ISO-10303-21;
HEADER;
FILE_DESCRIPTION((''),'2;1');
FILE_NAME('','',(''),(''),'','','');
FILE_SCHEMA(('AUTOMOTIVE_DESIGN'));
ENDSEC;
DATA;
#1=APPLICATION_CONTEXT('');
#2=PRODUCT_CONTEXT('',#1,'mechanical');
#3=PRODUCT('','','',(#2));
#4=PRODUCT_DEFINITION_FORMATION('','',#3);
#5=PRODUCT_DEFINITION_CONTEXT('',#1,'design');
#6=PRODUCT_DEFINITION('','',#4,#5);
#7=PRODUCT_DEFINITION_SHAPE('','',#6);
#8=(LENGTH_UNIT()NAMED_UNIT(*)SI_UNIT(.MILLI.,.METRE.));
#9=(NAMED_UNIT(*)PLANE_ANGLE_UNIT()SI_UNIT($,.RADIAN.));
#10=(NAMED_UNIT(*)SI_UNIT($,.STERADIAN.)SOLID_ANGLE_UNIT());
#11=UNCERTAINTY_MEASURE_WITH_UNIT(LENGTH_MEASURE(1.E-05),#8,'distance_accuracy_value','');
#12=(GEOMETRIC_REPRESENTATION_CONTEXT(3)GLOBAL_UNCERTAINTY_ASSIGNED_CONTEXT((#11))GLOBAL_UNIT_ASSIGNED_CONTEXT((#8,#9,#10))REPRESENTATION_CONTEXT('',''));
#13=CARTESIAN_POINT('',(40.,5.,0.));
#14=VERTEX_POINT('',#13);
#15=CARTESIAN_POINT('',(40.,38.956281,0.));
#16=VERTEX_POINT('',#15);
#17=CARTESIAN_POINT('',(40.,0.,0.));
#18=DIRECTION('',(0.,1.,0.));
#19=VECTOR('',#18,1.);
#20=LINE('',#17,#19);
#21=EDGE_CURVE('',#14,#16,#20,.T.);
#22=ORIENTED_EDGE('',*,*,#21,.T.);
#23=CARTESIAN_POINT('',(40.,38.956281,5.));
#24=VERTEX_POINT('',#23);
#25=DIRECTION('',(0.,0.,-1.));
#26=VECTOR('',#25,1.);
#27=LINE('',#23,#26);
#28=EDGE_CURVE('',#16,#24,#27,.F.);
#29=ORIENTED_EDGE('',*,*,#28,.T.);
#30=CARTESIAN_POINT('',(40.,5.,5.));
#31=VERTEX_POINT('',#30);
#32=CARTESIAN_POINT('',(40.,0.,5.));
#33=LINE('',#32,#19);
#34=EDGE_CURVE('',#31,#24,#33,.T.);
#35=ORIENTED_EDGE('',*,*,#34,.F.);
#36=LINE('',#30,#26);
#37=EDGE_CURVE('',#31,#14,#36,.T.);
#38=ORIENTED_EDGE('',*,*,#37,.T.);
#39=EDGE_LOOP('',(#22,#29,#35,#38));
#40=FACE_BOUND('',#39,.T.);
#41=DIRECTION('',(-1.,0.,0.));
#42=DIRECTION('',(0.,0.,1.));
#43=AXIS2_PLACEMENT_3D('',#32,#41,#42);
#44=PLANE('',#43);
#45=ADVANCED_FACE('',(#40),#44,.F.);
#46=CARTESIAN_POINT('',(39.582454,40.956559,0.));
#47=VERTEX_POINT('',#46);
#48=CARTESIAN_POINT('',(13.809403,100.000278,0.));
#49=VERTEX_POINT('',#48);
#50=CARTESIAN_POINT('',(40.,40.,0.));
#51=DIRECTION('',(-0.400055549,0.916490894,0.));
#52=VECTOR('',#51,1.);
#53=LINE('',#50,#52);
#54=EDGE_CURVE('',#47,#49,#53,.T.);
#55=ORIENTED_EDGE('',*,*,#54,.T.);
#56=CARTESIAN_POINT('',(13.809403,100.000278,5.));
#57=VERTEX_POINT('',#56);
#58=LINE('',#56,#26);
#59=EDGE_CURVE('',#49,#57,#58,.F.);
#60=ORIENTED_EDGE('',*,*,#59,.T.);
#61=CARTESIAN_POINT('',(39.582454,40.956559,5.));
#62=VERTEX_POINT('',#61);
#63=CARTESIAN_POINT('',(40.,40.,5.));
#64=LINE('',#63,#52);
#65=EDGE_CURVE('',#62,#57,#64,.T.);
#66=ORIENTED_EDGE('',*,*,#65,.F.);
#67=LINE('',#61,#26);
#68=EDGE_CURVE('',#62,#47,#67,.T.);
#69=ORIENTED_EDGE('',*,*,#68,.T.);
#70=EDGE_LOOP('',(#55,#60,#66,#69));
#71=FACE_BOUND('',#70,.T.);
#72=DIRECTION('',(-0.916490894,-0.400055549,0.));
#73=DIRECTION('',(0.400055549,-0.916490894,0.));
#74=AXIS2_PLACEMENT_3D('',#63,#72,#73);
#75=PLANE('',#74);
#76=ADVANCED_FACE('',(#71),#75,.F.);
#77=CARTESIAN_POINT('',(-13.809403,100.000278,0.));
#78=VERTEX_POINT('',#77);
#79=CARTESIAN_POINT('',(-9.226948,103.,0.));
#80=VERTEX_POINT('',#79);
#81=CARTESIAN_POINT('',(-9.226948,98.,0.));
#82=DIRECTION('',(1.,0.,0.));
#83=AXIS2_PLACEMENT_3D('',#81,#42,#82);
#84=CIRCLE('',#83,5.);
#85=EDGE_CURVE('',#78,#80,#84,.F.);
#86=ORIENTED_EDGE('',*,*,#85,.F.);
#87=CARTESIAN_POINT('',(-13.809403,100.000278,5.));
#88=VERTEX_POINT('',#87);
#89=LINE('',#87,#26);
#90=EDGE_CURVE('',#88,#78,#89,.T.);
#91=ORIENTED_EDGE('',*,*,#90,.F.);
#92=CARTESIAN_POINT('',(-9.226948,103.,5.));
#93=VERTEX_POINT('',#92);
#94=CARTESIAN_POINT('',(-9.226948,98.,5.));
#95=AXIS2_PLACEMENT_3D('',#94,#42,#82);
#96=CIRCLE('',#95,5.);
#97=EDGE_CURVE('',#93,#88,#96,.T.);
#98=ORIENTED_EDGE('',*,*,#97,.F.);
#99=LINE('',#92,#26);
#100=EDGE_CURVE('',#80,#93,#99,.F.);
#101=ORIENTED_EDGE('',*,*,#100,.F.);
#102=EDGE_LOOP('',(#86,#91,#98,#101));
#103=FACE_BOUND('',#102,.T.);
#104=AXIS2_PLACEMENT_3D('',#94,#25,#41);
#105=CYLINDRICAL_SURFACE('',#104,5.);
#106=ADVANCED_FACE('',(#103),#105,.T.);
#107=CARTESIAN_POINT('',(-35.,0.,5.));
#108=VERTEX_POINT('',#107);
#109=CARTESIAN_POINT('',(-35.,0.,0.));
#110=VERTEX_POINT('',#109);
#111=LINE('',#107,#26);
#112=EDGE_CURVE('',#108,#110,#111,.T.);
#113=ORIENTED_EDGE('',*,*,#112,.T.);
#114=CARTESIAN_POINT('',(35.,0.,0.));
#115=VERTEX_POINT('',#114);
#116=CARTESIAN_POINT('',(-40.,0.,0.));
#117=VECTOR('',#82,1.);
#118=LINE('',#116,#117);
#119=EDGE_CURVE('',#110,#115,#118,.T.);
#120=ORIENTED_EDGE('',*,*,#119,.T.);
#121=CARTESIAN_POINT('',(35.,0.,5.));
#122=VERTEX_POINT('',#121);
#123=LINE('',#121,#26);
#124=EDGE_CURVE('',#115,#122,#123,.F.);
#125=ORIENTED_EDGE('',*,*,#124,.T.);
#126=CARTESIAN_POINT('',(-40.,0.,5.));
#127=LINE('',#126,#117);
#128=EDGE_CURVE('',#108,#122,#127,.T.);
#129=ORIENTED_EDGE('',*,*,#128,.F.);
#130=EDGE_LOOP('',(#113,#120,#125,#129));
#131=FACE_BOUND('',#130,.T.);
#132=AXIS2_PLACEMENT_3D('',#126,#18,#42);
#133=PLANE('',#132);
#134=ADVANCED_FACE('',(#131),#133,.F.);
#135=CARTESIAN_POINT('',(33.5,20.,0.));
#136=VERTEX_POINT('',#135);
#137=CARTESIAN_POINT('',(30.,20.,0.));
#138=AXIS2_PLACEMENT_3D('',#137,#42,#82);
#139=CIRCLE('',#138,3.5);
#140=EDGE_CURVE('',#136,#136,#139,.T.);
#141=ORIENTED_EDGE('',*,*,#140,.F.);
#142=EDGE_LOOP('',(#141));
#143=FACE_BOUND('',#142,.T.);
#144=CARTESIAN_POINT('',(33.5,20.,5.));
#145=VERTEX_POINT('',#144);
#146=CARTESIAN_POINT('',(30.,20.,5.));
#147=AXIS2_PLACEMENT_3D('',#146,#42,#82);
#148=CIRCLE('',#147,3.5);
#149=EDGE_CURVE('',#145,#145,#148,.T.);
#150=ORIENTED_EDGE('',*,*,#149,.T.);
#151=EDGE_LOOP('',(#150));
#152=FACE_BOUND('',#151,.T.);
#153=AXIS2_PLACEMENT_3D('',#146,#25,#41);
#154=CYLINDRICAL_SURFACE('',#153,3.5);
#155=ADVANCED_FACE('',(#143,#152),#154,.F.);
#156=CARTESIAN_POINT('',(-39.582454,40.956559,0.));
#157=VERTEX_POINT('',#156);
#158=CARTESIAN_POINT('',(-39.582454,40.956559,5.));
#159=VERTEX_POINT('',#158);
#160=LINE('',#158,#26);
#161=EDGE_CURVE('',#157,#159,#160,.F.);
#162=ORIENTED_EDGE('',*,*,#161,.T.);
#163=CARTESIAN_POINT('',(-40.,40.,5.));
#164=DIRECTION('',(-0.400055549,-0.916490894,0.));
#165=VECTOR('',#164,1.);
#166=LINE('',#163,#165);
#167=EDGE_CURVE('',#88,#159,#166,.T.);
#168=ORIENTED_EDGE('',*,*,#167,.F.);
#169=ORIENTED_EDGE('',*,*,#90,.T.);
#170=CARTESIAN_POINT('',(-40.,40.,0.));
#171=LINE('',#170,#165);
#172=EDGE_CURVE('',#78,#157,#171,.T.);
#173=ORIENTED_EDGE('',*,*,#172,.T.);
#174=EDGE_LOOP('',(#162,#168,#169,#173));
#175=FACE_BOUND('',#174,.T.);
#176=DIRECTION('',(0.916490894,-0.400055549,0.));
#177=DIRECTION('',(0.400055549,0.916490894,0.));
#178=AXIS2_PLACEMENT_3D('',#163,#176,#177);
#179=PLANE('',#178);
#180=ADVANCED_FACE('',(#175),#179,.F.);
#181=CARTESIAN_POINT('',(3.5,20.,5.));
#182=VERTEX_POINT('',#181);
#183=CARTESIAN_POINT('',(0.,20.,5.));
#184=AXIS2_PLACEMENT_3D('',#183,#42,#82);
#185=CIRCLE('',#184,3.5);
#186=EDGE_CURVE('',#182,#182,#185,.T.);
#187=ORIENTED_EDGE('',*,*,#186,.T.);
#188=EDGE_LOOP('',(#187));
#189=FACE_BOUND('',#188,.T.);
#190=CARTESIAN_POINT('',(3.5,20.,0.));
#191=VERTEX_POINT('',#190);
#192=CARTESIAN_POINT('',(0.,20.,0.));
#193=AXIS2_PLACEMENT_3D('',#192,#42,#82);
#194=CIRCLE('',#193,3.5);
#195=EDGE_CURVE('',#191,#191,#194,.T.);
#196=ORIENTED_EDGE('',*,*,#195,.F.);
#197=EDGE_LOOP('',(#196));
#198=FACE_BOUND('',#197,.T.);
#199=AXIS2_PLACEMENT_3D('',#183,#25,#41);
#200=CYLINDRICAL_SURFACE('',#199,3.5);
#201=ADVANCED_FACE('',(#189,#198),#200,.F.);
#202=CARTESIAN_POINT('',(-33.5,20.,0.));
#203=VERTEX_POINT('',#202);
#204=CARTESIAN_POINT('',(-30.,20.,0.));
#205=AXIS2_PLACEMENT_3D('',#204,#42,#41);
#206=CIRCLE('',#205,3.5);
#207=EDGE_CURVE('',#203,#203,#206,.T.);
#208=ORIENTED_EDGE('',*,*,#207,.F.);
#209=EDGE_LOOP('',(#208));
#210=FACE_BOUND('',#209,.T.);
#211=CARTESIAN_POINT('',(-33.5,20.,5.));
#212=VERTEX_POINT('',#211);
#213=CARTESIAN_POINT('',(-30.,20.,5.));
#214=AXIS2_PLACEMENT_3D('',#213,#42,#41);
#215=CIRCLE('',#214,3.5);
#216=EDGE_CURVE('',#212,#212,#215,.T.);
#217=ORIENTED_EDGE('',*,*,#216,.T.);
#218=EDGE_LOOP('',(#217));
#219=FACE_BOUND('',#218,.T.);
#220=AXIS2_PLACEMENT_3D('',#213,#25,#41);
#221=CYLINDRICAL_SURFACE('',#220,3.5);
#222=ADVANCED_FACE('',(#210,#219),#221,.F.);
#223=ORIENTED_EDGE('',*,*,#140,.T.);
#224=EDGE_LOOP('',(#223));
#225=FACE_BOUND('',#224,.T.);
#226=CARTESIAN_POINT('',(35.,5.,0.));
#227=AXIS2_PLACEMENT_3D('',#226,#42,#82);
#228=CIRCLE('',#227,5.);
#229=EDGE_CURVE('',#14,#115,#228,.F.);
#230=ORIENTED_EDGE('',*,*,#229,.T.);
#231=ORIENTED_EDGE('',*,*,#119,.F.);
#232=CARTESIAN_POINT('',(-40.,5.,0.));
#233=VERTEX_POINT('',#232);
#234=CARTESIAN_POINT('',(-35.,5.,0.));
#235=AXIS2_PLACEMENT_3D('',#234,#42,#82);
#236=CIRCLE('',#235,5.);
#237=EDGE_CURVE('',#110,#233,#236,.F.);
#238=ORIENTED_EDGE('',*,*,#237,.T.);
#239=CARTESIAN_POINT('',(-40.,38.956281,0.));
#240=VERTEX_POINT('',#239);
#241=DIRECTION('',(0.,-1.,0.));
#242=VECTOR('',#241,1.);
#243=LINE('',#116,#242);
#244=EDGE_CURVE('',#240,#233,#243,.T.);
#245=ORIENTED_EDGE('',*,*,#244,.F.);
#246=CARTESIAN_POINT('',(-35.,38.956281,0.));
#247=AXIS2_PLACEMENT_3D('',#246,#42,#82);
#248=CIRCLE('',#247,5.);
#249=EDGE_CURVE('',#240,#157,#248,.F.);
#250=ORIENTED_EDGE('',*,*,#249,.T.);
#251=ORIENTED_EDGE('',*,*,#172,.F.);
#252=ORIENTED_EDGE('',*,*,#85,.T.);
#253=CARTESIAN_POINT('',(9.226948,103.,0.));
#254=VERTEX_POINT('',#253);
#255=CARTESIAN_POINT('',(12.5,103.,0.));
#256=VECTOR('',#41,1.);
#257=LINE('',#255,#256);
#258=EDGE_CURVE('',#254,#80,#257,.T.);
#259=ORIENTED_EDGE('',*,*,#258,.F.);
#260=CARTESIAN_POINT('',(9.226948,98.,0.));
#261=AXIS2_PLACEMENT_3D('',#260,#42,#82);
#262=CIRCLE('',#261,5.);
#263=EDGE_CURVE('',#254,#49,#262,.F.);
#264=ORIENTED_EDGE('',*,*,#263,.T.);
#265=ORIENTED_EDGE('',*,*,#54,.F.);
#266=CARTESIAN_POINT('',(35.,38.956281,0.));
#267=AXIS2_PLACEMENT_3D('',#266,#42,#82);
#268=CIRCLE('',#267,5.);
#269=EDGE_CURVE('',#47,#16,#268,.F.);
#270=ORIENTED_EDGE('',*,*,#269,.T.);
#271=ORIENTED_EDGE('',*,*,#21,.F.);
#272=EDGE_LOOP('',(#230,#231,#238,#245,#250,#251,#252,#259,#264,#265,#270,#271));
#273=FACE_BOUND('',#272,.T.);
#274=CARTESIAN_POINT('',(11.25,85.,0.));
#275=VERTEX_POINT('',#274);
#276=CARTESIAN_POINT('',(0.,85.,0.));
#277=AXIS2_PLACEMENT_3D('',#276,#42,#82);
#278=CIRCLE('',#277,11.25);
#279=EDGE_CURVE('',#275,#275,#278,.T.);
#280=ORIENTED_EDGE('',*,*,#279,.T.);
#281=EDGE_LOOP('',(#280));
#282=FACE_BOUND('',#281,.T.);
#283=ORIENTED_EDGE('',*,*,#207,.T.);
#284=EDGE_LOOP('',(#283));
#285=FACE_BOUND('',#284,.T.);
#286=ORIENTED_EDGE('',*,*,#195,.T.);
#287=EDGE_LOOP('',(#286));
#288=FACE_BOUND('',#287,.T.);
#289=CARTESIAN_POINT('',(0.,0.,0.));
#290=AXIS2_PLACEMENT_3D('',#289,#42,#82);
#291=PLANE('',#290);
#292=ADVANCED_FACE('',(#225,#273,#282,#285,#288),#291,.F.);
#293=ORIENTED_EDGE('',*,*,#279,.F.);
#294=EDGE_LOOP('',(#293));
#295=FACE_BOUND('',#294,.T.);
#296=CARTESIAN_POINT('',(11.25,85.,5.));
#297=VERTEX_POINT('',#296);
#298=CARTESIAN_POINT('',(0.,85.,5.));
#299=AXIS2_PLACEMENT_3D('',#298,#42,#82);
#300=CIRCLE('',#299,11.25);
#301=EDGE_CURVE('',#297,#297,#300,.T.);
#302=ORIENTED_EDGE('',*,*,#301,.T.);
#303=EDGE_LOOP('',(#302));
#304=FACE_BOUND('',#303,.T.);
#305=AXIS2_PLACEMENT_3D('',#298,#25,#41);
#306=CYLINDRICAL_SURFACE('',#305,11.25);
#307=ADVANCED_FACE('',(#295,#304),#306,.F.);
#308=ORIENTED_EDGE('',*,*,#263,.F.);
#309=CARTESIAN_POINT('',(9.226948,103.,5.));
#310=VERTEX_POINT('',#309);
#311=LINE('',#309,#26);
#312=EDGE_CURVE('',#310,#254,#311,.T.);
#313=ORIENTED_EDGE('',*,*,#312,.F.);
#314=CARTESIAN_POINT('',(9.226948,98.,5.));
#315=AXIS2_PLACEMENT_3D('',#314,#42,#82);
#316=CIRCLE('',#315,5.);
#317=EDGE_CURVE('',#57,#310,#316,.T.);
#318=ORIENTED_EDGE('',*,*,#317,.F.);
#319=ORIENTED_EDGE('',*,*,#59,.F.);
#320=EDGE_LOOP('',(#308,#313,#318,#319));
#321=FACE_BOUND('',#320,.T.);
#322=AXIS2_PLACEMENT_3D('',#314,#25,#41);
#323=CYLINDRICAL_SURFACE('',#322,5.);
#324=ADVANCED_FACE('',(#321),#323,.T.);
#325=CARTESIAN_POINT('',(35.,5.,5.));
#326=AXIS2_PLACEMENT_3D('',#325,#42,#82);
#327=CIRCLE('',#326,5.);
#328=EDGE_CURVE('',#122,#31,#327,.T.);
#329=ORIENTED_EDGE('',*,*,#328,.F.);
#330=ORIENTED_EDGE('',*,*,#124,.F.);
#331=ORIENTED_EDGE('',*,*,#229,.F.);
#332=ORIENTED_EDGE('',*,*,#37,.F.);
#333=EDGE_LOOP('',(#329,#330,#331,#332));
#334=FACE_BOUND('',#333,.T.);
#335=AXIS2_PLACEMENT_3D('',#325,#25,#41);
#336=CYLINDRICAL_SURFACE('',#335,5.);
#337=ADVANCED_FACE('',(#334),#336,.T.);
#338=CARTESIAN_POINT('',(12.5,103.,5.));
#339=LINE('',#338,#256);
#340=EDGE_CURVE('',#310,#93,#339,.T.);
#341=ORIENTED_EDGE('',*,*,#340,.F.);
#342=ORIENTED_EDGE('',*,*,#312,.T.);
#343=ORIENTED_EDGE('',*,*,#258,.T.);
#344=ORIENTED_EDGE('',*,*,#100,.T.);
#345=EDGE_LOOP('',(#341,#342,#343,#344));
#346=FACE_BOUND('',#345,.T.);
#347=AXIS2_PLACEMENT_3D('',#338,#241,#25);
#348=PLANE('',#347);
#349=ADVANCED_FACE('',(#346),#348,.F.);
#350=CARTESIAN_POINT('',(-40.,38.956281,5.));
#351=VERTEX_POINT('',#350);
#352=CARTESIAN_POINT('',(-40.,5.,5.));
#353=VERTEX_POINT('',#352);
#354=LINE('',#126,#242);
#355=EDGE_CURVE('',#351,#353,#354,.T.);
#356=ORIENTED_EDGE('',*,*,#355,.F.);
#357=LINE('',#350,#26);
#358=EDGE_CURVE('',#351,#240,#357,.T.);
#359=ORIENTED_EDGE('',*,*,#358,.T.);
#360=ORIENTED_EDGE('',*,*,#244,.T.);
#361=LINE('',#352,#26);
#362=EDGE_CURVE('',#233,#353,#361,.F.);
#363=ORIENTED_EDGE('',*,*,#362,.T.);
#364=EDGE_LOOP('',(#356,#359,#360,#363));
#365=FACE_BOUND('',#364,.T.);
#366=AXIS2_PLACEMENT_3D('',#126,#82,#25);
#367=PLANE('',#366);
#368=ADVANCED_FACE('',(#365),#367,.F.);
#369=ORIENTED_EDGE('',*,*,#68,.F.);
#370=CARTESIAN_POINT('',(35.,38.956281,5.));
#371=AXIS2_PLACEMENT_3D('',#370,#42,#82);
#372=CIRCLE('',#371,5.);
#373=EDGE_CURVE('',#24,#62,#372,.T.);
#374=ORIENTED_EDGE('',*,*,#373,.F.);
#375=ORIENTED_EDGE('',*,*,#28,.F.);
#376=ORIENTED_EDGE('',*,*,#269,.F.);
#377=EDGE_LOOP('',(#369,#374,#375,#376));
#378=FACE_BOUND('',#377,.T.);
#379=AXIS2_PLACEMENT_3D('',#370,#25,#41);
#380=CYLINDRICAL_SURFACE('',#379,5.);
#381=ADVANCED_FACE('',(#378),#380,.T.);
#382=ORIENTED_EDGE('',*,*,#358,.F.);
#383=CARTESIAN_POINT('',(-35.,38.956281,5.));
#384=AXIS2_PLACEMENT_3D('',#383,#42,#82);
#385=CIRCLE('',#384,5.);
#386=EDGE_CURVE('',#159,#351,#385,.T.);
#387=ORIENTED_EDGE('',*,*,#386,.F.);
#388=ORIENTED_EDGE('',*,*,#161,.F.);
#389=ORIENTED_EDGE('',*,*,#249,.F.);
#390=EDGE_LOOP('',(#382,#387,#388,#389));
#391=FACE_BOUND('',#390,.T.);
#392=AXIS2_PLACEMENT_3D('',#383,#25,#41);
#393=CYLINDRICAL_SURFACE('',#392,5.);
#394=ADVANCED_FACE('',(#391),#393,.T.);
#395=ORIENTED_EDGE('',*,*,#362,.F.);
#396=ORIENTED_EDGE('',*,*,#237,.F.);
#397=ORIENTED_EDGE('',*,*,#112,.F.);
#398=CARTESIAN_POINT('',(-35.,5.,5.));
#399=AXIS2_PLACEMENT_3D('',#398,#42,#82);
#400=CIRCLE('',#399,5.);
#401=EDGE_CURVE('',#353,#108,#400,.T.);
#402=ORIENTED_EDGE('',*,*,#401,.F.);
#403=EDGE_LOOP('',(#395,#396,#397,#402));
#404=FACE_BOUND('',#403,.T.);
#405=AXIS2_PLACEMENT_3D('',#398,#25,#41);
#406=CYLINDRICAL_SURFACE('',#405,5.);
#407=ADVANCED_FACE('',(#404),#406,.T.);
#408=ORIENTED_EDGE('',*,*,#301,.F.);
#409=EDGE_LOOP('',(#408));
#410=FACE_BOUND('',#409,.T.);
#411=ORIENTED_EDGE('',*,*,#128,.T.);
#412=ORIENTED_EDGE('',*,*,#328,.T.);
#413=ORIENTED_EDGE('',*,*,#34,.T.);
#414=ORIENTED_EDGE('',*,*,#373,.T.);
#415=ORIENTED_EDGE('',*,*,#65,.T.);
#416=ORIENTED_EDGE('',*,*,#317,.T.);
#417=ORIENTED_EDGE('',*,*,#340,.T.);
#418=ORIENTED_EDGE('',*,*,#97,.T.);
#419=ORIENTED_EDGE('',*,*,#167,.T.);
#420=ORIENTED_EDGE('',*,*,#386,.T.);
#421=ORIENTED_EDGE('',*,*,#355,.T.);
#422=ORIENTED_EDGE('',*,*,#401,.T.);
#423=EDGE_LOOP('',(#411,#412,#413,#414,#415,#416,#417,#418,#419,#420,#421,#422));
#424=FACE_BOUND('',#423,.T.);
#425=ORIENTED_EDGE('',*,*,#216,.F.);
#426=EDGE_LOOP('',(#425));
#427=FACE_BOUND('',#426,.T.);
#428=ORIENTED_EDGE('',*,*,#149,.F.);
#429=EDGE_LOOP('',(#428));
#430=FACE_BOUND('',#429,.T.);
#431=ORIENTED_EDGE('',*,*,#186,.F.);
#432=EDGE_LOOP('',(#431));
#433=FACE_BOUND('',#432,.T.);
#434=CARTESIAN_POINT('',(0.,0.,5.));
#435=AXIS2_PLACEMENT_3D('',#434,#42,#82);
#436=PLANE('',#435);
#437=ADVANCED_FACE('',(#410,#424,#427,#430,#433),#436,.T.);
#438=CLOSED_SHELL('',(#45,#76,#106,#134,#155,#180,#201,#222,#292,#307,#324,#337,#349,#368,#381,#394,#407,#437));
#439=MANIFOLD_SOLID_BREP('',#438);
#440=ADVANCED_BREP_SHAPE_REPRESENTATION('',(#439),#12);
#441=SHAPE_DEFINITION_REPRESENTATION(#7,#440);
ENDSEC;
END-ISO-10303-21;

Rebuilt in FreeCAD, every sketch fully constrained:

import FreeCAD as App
import Part
import Sketcher
from FreeCAD import Vector


def edges_at(feature, points):
    """Names of the edges that pass closest to the given points."""
    edges = feature.Shape.Edges
    near = lambda p: min(range(len(edges)), key=lambda i: edges[i].distToShape(Part.Vertex(*p))[0])
    return sorted({f"Edge{near(p) + 1}" for p in points})


def add_polygon(sketch, points):
    """Adds a closed chain of lines whose ends are joined by coincident constraints."""
    first, n = sketch.GeometryCount, len(points)
    for a, b in zip(points, points[1:] + points[:1]):
        sketch.addGeometry(Part.LineSegment(App.Vector(*a, 0), App.Vector(*b, 0)), False)
    for i in range(n):
        sketch.addConstraint(Sketcher.Constraint("Coincident", first + i, 2, first + (i + 1) % n, 1))

doc = App.newDocument("Part")
params = doc.addObject("Spreadsheet::Sheet", "Params")
for row, (alias, value) in enumerate([
    ("sketch1_diameter", "7 mm"),
    ("sketch1_diameter2", "22.5 mm"),
    ("sketch1_width", "80 mm"),
    ("sketch1_width2", "25 mm"),
    ("sketch1_height", "40 mm"),
    ("pad1_length", "5 mm"),
    ("fillet_radius", "5 mm"),
], start=1):
    params.set(f"A{row}", alias)
    params.set(f"B{row}", "=" + value)
    params.setAlias(f"B{row}", alias)

body = doc.addObject("PartDesign::Body", "Body")

sketch1 = body.newObject("Sketcher::SketchObject", "Sketch")
sketch1.AttachmentSupport = (doc.getObject("XY_Plane"), [""])
sketch1.MapMode = "FlatFace"
add_polygon(sketch1, [(-40, 0), (40, 0), (40, 40), (12.5, 103), (-12.5, 103), (-40, 40)])
sketch1.addGeometry(Part.Circle(Vector(-30, 20, 0), Vector(0, 0, 1), 3.5), False)
sketch1.addGeometry(Part.Circle(Vector(0, 20, 0), Vector(0, 0, 1), 3.5), False)
sketch1.addGeometry(Part.Circle(Vector(30, 20, 0), Vector(0, 0, 1), 3.5), False)
sketch1.addGeometry(Part.Circle(Vector(0, 85, 0), Vector(0, 0, 1), 11.2), False)
sketch1.addConstraint(Sketcher.Constraint("Horizontal", 0))
sketch1.addConstraint(Sketcher.Constraint("Vertical", 1))
sketch1.addConstraint(Sketcher.Constraint("Horizontal", 3))
sketch1.addConstraint(Sketcher.Constraint("Vertical", 5))
sketch1.addConstraint(Sketcher.Constraint("Equal", 6, 7))
sketch1.addConstraint(Sketcher.Constraint("Equal", 7, 8))
sketch1.addConstraint(Sketcher.Constraint("Symmetric", 0, 2, 5, 2, -1, 1))
sketch1.addConstraint(Sketcher.Constraint("Symmetric", 6, 3, 8, 3, -2))
sketch1.addConstraint(Sketcher.Constraint("PointOnObject", 7, 3, -2))
sketch1.addConstraint(Sketcher.Constraint("PointOnObject", 9, 3, -2))
sketch1.addConstraint(Sketcher.Constraint("Horizontal", 6, 3, 7, 3))
sketch1.addConstraint(Sketcher.Constraint("Horizontal", 1, 2, 4, 2))
sketch1.addConstraint(Sketcher.Constraint("Equal", 2, 4))
sketch1.addConstraint(Sketcher.Constraint("Diameter", 6, 7.0))
sketch1.addConstraint(Sketcher.Constraint("Diameter", 9, 22.5))
sketch1.addConstraint(Sketcher.Constraint("DistanceX", 0, 1, 0, 2, 80.0))
sketch1.addConstraint(Sketcher.Constraint("DistanceX", 3, 2, 3, 1, 25.0))
sketch1.addConstraint(Sketcher.Constraint("DistanceY", 1, 1, 1, 2, 40.0))
sketch1.addConstraint(Sketcher.Constraint("DistanceX", 6, 3, -1, 1, 30.0))
sketch1.addConstraint(Sketcher.Constraint("DistanceY", -1, 1, 6, 3, 20.0))
sketch1.addConstraint(Sketcher.Constraint("DistanceY", -1, 1, 9, 3, 85.0))
sketch1.addConstraint(Sketcher.Constraint("DistanceY", -1, 1, 2, 2, 103.0))
sketch1.setExpression("Constraints[19]", "Params.sketch1_diameter")
sketch1.setExpression("Constraints[20]", "Params.sketch1_diameter2")
sketch1.setExpression("Constraints[21]", "Params.sketch1_width")
sketch1.setExpression("Constraints[22]", "Params.sketch1_width2")
sketch1.setExpression("Constraints[23]", "Params.sketch1_height")
pad1 = body.newObject("PartDesign::Pad", "Pad")
pad1.Profile = sketch1
pad1.setExpression("Length", "Params.pad1_length")
doc.recompute()

fillet = body.newObject("PartDesign::Fillet", "Fillet")
fillet.Base = (pad1, edges_at(pad1, [
    (-12.5, 103, 2.5),
    (12.5, 103, 2.5),
    (40, 40, 2.5),
    (40, 0, 2.5),
    (-40, 0, 2.5),
    (-40, 40, 2.5),
]))
fillet.setExpression("Radius", "Params.fillet_radius")

doc.recompute()
